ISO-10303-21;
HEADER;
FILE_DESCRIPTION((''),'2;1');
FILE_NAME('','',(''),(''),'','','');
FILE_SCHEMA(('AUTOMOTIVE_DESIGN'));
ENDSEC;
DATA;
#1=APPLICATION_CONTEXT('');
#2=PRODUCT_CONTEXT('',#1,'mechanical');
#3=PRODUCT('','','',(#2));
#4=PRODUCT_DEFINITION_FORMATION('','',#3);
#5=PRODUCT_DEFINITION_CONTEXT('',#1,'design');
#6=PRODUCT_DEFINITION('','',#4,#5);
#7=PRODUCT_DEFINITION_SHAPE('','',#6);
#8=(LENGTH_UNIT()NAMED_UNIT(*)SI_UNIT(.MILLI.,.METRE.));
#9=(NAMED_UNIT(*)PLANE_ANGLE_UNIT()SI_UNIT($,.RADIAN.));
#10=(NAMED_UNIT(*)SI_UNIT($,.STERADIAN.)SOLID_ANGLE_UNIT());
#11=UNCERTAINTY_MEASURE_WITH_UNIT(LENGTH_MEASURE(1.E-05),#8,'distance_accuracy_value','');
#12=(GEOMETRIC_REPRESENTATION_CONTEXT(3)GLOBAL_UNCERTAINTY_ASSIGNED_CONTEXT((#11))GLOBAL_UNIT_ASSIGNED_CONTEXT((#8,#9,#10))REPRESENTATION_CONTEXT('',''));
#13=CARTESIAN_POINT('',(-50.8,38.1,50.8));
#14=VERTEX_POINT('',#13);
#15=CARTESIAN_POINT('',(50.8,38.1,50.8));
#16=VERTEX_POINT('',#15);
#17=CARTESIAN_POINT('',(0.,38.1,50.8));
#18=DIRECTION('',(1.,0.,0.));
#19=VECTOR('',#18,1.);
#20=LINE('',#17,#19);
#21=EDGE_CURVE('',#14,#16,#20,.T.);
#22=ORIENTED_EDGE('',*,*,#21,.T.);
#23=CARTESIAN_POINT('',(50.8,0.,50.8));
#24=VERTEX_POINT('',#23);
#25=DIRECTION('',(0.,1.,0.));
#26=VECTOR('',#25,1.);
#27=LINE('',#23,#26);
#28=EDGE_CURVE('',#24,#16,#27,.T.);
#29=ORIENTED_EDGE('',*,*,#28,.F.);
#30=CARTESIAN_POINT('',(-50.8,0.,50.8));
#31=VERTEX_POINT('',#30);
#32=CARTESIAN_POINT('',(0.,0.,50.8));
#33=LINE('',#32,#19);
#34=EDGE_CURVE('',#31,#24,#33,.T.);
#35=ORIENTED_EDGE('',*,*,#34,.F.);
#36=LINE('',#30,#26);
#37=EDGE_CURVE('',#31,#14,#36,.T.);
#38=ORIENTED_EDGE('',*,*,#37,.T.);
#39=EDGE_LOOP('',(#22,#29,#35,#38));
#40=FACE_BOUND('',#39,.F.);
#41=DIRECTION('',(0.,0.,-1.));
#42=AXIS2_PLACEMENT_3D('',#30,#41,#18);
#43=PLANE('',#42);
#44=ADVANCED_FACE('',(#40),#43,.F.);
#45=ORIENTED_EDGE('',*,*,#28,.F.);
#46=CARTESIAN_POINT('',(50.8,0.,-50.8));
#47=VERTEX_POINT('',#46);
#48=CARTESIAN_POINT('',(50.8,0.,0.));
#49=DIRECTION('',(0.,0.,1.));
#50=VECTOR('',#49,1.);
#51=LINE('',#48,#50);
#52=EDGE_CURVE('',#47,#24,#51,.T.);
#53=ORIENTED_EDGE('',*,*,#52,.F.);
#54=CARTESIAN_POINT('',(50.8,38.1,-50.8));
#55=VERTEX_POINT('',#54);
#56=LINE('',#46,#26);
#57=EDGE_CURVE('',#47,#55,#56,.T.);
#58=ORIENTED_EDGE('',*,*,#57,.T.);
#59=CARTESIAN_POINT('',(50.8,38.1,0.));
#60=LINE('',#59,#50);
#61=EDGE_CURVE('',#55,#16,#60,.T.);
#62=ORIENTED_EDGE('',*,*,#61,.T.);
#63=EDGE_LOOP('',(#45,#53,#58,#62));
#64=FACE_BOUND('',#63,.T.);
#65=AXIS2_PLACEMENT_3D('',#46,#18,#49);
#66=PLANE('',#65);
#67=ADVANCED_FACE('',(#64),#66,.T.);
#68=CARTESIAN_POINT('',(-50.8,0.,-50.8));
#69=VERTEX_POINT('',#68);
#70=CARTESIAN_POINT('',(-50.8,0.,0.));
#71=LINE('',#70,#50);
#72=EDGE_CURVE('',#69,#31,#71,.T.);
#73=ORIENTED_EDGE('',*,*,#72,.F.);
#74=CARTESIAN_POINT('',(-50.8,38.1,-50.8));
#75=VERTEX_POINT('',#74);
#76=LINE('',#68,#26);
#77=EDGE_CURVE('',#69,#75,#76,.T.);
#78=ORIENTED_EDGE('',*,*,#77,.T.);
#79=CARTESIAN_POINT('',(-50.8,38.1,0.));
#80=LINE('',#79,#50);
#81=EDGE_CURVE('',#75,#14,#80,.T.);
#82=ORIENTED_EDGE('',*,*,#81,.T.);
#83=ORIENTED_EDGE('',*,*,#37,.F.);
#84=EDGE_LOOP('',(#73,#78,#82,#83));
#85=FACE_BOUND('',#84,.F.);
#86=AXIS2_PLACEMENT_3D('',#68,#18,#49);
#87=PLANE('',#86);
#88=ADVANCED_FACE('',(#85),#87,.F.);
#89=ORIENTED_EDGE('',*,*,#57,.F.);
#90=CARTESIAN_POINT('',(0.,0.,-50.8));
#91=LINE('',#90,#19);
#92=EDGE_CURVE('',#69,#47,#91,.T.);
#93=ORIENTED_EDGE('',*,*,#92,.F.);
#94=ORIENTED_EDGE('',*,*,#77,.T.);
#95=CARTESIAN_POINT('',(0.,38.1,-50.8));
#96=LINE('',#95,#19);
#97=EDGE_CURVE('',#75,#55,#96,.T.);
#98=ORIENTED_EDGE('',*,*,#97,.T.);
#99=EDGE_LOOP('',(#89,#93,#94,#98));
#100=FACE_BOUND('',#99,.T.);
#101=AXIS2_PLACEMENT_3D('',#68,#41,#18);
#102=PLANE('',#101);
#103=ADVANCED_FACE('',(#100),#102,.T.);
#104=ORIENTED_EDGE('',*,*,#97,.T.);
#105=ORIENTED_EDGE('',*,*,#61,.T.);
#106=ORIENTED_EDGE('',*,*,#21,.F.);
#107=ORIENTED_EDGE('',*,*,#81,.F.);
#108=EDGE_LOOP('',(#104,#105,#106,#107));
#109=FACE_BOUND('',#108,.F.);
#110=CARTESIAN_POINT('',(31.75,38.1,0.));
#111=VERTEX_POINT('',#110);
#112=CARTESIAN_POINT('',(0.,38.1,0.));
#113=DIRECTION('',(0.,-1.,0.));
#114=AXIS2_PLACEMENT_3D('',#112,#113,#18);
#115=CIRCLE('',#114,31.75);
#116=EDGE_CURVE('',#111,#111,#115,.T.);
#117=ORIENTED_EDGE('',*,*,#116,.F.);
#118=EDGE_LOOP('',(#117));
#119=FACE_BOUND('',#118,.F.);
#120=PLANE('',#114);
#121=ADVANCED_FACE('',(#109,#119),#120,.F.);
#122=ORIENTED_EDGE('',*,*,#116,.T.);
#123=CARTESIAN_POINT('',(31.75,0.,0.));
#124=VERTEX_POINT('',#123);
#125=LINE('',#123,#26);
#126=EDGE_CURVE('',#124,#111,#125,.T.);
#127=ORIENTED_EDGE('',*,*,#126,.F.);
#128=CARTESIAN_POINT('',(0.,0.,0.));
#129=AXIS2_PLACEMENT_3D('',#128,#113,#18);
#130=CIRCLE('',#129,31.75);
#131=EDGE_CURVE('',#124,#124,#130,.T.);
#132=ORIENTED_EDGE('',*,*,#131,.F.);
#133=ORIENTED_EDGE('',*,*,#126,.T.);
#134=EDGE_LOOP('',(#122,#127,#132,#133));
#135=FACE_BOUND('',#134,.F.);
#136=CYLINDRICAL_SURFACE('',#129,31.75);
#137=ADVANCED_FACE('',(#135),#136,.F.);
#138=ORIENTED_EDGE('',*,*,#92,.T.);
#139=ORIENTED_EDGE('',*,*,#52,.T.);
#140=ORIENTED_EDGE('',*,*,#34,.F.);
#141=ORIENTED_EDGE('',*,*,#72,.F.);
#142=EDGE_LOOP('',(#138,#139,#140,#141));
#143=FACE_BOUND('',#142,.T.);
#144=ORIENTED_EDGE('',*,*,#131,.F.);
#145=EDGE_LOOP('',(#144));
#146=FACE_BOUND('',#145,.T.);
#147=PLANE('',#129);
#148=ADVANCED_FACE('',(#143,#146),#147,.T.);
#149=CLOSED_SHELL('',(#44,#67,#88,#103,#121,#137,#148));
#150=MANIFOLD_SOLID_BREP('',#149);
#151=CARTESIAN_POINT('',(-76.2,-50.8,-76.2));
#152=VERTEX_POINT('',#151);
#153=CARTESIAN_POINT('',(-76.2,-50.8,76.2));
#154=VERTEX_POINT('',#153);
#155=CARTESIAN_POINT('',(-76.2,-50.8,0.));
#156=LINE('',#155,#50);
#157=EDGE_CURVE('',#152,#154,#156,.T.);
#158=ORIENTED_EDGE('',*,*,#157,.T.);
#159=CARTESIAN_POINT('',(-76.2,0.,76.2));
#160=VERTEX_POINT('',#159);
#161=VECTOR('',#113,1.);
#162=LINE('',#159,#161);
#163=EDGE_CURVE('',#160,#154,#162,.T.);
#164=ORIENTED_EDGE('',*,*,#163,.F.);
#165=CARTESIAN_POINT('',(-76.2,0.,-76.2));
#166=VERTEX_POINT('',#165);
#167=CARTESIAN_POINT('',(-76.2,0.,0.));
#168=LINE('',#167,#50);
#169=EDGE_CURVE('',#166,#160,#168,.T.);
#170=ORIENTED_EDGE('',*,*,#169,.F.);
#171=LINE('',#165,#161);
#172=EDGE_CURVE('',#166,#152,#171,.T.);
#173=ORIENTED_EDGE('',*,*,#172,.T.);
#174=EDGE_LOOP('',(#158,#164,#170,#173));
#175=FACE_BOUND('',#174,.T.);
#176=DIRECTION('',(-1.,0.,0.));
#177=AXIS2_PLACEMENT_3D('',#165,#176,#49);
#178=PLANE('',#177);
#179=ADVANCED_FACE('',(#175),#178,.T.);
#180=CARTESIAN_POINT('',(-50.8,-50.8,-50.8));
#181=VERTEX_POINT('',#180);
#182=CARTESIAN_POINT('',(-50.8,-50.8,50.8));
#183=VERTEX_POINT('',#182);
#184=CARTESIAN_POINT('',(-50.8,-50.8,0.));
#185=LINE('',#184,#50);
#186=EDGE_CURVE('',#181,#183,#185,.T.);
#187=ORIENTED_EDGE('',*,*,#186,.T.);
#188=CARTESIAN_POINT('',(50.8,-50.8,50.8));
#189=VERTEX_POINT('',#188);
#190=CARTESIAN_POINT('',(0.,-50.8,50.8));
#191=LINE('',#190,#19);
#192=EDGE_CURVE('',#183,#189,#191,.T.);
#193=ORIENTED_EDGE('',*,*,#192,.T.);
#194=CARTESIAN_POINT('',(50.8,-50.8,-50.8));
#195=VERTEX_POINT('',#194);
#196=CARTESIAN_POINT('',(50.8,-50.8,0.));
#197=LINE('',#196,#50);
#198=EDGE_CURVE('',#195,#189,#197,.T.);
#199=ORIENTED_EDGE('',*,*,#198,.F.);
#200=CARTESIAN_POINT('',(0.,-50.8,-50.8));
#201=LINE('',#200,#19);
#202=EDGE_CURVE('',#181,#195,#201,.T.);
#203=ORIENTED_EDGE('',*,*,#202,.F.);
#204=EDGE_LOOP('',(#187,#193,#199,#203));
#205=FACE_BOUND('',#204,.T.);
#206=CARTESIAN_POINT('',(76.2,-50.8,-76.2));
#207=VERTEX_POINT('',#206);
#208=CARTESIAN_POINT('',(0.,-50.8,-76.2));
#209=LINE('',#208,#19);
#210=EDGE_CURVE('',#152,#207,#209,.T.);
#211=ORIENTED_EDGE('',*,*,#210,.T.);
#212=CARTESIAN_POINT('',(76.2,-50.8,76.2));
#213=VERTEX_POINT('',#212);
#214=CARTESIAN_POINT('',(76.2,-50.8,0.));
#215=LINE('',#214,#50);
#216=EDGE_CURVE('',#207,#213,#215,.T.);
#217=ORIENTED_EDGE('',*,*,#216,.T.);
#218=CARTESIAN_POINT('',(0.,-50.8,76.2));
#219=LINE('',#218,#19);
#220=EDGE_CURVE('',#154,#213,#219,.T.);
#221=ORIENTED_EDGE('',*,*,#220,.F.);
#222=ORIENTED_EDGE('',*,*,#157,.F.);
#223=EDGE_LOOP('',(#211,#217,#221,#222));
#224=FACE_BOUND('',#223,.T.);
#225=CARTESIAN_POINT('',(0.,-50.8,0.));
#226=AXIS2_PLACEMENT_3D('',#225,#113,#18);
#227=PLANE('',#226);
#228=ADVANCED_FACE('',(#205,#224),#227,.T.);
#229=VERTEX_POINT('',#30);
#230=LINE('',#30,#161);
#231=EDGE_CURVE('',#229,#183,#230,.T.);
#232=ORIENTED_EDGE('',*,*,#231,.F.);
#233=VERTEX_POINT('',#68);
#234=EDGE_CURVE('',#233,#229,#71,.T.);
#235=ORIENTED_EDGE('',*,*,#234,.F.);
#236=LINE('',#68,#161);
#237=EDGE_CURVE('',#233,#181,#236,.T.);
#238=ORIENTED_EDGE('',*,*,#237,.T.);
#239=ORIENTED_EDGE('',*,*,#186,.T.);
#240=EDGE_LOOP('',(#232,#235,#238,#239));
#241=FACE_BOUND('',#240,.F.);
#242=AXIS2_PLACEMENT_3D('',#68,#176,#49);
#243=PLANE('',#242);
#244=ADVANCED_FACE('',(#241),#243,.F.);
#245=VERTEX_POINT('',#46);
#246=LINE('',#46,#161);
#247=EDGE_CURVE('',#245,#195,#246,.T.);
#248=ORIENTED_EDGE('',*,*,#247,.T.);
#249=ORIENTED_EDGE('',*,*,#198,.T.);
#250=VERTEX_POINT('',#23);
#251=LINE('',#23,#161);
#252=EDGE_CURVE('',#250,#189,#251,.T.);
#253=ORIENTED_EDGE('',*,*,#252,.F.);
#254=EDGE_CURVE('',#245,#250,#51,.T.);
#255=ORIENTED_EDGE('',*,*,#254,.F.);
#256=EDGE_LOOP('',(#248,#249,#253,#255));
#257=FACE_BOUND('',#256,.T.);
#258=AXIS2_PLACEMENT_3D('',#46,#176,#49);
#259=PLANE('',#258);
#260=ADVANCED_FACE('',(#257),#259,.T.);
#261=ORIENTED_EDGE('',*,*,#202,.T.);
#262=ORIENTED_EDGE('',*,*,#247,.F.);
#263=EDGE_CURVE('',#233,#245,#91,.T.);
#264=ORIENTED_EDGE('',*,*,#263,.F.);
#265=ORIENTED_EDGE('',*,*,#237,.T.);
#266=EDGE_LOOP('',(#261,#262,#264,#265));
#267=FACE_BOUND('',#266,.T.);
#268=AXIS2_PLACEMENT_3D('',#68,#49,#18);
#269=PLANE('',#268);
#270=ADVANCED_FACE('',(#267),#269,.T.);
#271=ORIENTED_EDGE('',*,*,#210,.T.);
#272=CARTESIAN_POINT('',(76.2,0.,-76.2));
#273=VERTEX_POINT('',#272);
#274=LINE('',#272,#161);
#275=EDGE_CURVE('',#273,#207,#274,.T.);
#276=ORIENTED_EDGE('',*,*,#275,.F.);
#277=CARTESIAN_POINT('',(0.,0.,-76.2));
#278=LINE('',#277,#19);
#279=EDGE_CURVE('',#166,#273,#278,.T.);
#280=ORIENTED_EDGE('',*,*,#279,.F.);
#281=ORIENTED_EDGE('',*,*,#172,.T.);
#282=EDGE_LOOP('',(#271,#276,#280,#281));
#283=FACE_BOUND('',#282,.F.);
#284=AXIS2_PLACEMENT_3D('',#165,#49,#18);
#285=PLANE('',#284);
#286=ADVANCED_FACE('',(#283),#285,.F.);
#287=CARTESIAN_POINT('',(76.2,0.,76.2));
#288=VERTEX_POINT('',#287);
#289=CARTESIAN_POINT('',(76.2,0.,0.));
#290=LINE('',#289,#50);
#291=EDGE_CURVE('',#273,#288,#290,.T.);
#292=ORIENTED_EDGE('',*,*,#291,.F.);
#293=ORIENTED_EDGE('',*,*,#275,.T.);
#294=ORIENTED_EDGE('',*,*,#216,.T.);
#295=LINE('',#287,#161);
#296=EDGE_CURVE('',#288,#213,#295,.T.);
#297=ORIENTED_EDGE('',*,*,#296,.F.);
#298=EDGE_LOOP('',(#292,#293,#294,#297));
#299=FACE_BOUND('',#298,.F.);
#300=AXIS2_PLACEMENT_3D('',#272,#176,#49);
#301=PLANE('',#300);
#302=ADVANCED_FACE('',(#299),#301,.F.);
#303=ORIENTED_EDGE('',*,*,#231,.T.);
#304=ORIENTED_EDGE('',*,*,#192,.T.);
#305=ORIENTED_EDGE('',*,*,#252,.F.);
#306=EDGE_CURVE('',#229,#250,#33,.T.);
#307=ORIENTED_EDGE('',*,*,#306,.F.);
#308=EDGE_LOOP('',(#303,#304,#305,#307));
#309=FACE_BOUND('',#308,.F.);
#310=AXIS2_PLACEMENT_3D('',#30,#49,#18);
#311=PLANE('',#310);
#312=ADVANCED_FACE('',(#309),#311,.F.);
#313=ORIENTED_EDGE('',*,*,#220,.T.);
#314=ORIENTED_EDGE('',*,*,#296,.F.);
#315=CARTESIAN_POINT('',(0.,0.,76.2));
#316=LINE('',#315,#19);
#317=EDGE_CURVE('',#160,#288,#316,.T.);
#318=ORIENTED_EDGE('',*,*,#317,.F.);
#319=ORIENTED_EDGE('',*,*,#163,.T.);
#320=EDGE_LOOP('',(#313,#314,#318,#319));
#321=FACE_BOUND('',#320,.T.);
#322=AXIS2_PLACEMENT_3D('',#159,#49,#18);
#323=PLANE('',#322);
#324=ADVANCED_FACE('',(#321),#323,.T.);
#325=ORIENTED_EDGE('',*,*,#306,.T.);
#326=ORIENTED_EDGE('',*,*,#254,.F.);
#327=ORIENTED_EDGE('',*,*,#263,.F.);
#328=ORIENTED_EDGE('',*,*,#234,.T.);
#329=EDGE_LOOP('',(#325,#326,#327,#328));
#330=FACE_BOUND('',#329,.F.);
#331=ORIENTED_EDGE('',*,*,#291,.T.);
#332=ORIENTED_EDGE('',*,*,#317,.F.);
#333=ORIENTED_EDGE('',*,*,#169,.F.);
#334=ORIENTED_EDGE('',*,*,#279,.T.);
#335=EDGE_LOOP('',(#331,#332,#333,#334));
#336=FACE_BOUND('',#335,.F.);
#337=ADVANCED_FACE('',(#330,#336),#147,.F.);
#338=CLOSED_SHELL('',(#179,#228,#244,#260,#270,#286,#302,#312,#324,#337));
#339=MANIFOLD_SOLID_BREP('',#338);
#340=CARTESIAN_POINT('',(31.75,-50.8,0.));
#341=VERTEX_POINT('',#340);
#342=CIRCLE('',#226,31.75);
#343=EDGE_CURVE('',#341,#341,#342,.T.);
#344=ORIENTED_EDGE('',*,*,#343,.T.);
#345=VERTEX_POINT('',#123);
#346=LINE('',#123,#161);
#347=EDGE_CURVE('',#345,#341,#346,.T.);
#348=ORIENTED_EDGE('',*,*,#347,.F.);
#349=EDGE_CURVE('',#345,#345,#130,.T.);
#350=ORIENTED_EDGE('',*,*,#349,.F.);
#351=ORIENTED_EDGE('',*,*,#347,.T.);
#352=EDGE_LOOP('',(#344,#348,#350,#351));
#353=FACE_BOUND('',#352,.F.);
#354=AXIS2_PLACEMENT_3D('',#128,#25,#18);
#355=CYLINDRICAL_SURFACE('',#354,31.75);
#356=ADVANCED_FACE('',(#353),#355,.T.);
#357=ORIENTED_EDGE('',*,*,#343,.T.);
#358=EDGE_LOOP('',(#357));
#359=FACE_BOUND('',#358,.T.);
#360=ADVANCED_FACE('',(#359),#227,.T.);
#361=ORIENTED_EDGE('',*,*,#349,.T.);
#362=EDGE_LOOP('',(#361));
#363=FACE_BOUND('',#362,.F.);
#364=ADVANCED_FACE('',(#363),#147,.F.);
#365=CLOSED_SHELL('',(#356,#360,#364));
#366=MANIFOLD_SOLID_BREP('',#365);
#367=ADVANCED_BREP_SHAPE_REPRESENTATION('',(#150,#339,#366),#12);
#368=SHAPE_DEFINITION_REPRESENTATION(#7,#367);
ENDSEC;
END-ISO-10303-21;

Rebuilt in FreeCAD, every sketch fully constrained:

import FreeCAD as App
import Part
import Sketcher
from FreeCAD import Vector
Q = App.Units.Quantity


def add_polygon(sketch, points):
    """Adds a closed chain of lines whose ends are joined by coincident constraints."""
    first, n = sketch.GeometryCount, len(points)
    for a, b in zip(points, points[1:] + points[:1]):
        sketch.addGeometry(Part.LineSegment(App.Vector(*a, 0), App.Vector(*b, 0)), False)
    for i in range(n):
        sketch.addConstraint(Sketcher.Constraint("Coincident", first + i, 2, first + (i + 1) % n, 1))

doc = App.newDocument("Part")
body = doc.addObject("PartDesign::Body", "Body")

# Sketch on XZ plane
sketch1 = doc.addObject("Sketcher::SketchObject", "Sketch")
body.addObject(sketch1)
sketch1.AttachmentSupport = (doc.XZ_Plane, [""])
sketch1.MapMode = "FlatFace"
add_polygon(sketch1, [(-51, 51), (-51, -51), (51, -51), (51, 51)])  # lines 0-3
sketch1.addGeometry(Part.Circle(Vector(0, 0, 0), Vector(0, 0, 1), 32), False)  # 4
sketch1.addConstraint(Sketcher.Constraint("Vertical", 0))
sketch1.addConstraint(Sketcher.Constraint("Horizontal", 1))
sketch1.addConstraint(Sketcher.Constraint("Vertical", 2))
sketch1.addConstraint(Sketcher.Constraint("Horizontal", 3))
sketch1.addConstraint(Sketcher.Constraint("Coincident", 4, 3, -1, 1))
sketch1.addConstraint(Sketcher.Constraint("Symmetric", 0, 2, 2, 2, -1, 1))
sketch1.addConstraint(Sketcher.Constraint("Equal", 3, 0))
sketch1.addConstraint(Sketcher.Constraint("Diameter", 4, Q("2.5 in")))
sketch1.addConstraint(Sketcher.Constraint("DistanceX", 1, 1, 1, 2, Q("4 in")))
pad1 = doc.addObject("PartDesign::Pad", "Pad")
body.addObject(pad1)
pad1.Profile = sketch1
pad1.Length = Q("1.5 in")
pad1.Reversed = True
body2 = doc.addObject("PartDesign::Body", "Body001")
body2.AllowCompound = True

# Sketch on XZ plane
sketch2 = doc.addObject("Sketcher::SketchObject", "Sketch001")
body2.addObject(sketch2)
sketch2.AttachmentSupport = (doc.getObject("XZ_Plane001"), [""])
sketch2.MapMode = "FlatFace"
add_polygon(sketch2, [(-76, 76), (-76, -76), (76, -76), (76, 76)])  # lines 0-3
add_polygon(sketch2, [(51, -51), (-51, -51), (-51, 51), (51, 51)])  # lines 4-7
sketch2.addGeometry(Part.Circle(Vector(0, 0, 0), Vector(0, 0, 1), 32), False)  # 8
sketch2.addConstraint(Sketcher.Constraint("Vertical", 0))
sketch2.addConstraint(Sketcher.Constraint("Horizontal", 1))
sketch2.addConstraint(Sketcher.Constraint("Vertical", 2))
sketch2.addConstraint(Sketcher.Constraint("Horizontal", 3))
sketch2.addConstraint(Sketcher.Constraint("Horizontal", 4))
sketch2.addConstraint(Sketcher.Constraint("Vertical", 5))
sketch2.addConstraint(Sketcher.Constraint("Horizontal", 6))
sketch2.addConstraint(Sketcher.Constraint("Vertical", 7))
sketch2.addConstraint(Sketcher.Constraint("Coincident", 8, 3, -1, 1))
sketch2.addConstraint(Sketcher.Constraint("Symmetric", 0, 2, 2, 2, -1, 1))
sketch2.addConstraint(Sketcher.Constraint("Symmetric", 4, 2, 6, 2, -1, 1))
sketch2.addConstraint(Sketcher.Constraint("Equal", 3, 0))
sketch2.addConstraint(Sketcher.Constraint("Equal", 6, 5))
sketch2.addConstraint(Sketcher.Constraint("Diameter", 8, Q("2.5 in")))
sketch2.addConstraint(Sketcher.Constraint("DistanceX", 1, 1, 1, 2, Q("6 in")))
sketch2.addConstraint(Sketcher.Constraint("DistanceX", 4, 2, 4, 1, Q("4 in")))
pad2 = doc.addObject("PartDesign::Pad", "Pad001")
body2.addObject(pad2)
pad2.Profile = sketch2
pad2.Length = Q("2 in")

doc.recompute()
